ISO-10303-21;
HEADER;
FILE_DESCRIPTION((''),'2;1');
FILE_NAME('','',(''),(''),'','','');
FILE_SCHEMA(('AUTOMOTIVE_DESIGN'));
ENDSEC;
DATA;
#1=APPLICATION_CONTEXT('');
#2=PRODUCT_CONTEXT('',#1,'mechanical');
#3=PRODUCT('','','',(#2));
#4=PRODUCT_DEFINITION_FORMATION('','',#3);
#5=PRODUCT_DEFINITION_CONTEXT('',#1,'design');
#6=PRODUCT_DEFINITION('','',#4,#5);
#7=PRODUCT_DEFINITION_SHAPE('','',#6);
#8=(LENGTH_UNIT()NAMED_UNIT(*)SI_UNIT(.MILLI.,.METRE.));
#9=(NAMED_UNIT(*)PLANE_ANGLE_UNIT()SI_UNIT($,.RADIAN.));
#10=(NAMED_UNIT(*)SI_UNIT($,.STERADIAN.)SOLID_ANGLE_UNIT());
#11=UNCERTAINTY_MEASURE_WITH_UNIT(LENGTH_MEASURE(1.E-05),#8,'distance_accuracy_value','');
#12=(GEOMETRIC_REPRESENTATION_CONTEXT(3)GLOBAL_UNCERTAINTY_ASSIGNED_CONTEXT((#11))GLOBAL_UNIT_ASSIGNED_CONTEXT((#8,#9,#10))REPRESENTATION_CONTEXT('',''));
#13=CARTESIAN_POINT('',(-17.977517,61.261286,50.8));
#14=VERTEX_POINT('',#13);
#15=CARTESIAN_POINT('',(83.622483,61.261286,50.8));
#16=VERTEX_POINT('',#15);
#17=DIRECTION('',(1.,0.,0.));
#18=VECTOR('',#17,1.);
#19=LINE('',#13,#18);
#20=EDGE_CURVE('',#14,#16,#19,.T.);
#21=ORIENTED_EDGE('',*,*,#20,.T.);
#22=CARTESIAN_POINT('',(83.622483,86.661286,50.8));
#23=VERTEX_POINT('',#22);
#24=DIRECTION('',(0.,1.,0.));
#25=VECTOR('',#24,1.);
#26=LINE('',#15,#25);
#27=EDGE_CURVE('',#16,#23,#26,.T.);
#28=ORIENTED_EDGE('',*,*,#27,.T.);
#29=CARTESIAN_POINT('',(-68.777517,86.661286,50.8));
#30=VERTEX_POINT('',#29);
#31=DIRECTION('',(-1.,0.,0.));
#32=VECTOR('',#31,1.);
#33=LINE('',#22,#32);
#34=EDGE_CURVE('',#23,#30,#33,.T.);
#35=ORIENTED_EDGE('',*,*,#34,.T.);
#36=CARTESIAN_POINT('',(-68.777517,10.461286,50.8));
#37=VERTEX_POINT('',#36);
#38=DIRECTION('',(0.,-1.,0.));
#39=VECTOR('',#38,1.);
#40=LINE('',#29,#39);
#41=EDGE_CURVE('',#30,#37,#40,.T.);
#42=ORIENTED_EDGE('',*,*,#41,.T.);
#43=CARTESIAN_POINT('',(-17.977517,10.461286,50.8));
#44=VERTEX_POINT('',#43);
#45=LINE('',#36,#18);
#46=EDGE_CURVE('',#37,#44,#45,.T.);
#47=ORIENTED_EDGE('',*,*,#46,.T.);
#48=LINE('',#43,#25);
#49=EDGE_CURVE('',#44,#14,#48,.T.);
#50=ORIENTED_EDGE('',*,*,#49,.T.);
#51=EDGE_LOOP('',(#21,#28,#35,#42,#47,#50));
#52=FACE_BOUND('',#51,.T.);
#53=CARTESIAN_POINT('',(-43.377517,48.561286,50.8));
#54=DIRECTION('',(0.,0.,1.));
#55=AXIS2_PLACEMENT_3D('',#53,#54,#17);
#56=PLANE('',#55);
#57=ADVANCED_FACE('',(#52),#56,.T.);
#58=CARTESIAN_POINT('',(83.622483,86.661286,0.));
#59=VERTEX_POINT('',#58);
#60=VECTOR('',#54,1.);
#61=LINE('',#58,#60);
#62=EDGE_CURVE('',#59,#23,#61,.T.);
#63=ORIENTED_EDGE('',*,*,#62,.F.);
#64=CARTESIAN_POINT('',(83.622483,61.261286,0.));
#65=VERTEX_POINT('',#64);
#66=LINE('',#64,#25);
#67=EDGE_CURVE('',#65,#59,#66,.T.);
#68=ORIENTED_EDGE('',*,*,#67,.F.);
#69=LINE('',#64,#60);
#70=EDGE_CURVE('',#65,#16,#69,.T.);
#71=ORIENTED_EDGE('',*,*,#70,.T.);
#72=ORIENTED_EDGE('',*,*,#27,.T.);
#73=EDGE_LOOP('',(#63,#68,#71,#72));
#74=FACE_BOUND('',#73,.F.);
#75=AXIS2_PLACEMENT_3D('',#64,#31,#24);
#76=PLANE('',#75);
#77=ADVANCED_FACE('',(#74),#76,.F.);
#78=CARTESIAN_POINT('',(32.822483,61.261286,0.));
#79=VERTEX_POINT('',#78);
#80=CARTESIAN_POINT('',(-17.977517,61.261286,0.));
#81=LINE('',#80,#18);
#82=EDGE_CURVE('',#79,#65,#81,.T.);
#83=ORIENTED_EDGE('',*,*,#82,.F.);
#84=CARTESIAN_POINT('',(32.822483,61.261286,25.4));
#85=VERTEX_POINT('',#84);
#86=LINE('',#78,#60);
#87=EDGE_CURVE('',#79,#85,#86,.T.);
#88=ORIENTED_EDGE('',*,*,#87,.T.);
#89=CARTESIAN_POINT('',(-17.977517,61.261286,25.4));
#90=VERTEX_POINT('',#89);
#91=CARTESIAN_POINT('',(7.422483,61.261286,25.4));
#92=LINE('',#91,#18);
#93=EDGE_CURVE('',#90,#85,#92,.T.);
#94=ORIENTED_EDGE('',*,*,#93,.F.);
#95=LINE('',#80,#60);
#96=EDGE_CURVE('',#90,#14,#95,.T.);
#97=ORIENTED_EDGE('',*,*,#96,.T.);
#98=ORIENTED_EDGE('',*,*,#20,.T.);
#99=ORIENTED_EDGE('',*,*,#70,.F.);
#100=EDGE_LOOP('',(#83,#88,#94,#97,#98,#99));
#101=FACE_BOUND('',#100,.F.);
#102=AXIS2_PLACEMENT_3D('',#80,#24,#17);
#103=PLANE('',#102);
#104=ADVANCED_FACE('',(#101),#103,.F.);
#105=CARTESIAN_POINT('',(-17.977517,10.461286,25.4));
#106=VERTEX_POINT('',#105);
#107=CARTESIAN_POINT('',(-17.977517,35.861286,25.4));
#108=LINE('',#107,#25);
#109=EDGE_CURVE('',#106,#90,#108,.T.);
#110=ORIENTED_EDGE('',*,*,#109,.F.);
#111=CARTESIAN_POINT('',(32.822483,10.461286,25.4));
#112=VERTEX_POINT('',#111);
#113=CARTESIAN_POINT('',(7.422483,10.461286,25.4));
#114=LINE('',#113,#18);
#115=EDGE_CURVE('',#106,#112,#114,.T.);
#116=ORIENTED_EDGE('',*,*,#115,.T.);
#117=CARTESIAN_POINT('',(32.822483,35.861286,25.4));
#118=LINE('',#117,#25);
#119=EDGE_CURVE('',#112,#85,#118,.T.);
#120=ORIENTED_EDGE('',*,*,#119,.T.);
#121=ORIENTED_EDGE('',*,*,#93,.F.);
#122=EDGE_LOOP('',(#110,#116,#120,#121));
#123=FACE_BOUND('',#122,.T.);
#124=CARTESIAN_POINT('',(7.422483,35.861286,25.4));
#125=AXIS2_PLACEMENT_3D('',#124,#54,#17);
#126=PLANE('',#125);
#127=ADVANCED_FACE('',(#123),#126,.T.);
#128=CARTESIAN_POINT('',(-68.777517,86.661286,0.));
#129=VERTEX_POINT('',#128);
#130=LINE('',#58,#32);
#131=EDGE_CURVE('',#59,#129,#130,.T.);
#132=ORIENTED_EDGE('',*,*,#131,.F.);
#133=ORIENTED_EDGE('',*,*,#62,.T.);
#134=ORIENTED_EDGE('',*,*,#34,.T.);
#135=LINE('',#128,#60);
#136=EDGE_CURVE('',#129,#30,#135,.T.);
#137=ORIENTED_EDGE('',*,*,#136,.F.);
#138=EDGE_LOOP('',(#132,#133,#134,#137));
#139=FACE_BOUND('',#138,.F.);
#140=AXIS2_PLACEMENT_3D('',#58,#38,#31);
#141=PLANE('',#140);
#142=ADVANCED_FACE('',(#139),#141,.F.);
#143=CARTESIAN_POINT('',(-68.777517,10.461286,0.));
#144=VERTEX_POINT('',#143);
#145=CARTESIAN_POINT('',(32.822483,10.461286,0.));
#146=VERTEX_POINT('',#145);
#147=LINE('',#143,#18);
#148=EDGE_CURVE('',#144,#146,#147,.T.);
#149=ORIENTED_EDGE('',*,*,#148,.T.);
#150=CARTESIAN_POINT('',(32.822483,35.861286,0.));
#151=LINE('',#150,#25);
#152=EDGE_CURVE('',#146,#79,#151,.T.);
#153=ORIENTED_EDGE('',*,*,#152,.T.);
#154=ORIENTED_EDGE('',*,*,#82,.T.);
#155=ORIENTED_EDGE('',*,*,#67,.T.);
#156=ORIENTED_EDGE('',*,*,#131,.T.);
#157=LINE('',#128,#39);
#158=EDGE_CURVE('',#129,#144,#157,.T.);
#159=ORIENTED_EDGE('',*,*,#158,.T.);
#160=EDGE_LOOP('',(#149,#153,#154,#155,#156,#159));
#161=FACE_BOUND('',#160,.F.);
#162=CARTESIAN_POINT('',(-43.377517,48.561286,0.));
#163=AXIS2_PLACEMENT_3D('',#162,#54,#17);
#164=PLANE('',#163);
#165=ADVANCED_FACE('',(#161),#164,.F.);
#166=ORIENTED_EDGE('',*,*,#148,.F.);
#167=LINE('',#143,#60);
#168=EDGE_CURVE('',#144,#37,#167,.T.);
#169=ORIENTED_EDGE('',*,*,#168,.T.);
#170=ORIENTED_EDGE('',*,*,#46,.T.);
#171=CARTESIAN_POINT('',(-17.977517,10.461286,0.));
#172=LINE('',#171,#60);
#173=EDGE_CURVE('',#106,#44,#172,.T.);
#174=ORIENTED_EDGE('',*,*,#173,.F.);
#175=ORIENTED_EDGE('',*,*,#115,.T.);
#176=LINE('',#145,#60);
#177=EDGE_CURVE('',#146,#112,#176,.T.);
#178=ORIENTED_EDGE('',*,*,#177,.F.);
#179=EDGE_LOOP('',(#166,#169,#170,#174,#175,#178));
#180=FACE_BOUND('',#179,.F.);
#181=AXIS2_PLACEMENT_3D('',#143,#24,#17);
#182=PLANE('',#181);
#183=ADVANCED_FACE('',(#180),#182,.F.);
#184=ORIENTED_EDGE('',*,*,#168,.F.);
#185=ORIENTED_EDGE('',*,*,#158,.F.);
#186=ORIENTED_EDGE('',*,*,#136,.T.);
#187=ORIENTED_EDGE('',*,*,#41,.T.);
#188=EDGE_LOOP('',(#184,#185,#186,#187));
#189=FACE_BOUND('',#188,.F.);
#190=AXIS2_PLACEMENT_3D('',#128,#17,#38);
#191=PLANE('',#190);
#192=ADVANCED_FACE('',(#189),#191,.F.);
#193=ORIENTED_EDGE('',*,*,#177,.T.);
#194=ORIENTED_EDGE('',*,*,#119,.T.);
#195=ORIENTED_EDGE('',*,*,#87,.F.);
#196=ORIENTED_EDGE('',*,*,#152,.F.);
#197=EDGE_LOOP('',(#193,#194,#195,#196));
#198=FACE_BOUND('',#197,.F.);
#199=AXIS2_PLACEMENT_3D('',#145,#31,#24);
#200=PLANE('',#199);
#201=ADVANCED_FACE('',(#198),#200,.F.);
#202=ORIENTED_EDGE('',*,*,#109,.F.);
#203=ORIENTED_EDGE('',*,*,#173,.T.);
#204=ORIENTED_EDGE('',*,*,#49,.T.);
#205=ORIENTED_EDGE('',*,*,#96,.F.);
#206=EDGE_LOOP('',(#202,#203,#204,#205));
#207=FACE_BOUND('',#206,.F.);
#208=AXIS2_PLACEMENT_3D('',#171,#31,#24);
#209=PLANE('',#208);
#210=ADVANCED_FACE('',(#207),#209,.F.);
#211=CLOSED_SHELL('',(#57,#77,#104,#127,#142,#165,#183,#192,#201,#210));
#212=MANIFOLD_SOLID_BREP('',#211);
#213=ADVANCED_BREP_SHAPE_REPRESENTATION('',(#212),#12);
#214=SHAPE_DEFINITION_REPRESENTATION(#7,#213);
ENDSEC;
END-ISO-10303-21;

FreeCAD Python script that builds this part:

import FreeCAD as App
import Part
import Sketcher

V = App.Vector
Q = App.Units.Quantity

doc = App.newDocument("Part")
body = doc.addObject("PartDesign::Body", "Body")

sketch1 = body.newObject("Sketcher::SketchObject", "Sketch")
sketch1.AttachmentSupport = (doc.getObject("XY_Plane"), [""])
sketch1.MapMode = "FlatFace"
sketch1.addGeometry(Part.LineSegment(V(-18, 61, 0), V(-18, 10, 0)), False)
sketch1.addGeometry(Part.LineSegment(V(-18, 10, 0), V(33, 10, 0)), False)
sketch1.addGeometry(Part.LineSegment(V(33, 10, 0), V(33, 61, 0)), False)
sketch1.addGeometry(Part.LineSegment(V(33, 61, 0), V(-18, 61, 0)), False)
sketch1.addConstraint(Sketcher.Constraint("Coincident", 0, 2, 1, 1))
sketch1.addConstraint(Sketcher.Constraint("Coincident", 1, 2, 2, 1))
sketch1.addConstraint(Sketcher.Constraint("Coincident", 2, 2, 3, 1))
sketch1.addConstraint(Sketcher.Constraint("Coincident", 3, 2, 0, 1))
sketch1.addConstraint(Sketcher.Constraint("Vertical", 0))
sketch1.addConstraint(Sketcher.Constraint("Horizontal", 1))
sketch1.addConstraint(Sketcher.Constraint("Vertical", 2))
sketch1.addConstraint(Sketcher.Constraint("Horizontal", 3))
sketch1.addConstraint(Sketcher.Constraint("Equal", 3, 0))
sketch1.addConstraint(Sketcher.Constraint("DistanceX", 1, 1, 1, 2, Q("2 in")))
sketch1.addConstraint(Sketcher.Constraint("DistanceX", 0, 2, -1, 1, 17.977517))
sketch1.addConstraint(Sketcher.Constraint("DistanceY", -1, 1, 0, 2, 10.461286))
pad1 = body.newObject("PartDesign::Pad", "Pad")
pad1.Profile = sketch1
pad1.Length = Q("1 in")

sketch2 = body.newObject("Sketcher::SketchObject", "Sketch001")
sketch2.AttachmentSupport = (doc.getObject("XY_Plane"), [""])
sketch2.MapMode = "FlatFace"
sketch2.addGeometry(Part.LineSegment(V(-69, 87, 0), V(-69, 10, 0)), False)
sketch2.addGeometry(Part.LineSegment(V(-69, 10, 0), V(-18, 10, 0)), False)
sketch2.addGeometry(Part.LineSegment(V(-18, 10, 0), V(-18, 61, 0)), False)
sketch2.addGeometry(Part.LineSegment(V(-18, 61, 0), V(84, 61, 0)), False)
sketch2.addGeometry(Part.LineSegment(V(84, 61, 0), V(84, 87, 0)), False)
sketch2.addGeometry(Part.LineSegment(V(84, 87, 0), V(-69, 87, 0)), False)
sketch2.addConstraint(Sketcher.Constraint("Coincident", 0, 2, 1, 1))
sketch2.addConstraint(Sketcher.Constraint("Coincident", 1, 2, 2, 1))
sketch2.addConstraint(Sketcher.Constraint("Coincident", 2, 2, 3, 1))
sketch2.addConstraint(Sketcher.Constraint("Coincident", 3, 2, 4, 1))
sketch2.addConstraint(Sketcher.Constraint("Coincident", 4, 2, 5, 1))
sketch2.addConstraint(Sketcher.Constraint("Coincident", 5, 2, 0, 1))
sketch2.addConstraint(Sketcher.Constraint("Vertical", 0))
sketch2.addConstraint(Sketcher.Constraint("Horizontal", 1))
sketch2.addConstraint(Sketcher.Constraint("Vertical", 2))
sketch2.addConstraint(Sketcher.Constraint("Horizontal", 3))
sketch2.addConstraint(Sketcher.Constraint("Vertical", 4))
sketch2.addConstraint(Sketcher.Constraint("Horizontal", 5))
sketch2.addConstraint(Sketcher.Constraint("Equal", 1, 2))
sketch2.addConstraint(Sketcher.Constraint("DistanceX", 1, 1, 1, 2, Q("2 in")))
sketch2.addConstraint(Sketcher.Constraint("DistanceX", 3, 1, 3, 2, Q("4 in")))
sketch2.addConstraint(Sketcher.Constraint("DistanceY", 0, 2, 0, 1, Q("3 in")))
sketch2.addConstraint(Sketcher.Constraint("DistanceX", 0, 2, -1, 1, 68.777517))
sketch2.addConstraint(Sketcher.Constraint("DistanceY", -1, 1, 0, 2, 10.461286))
pad2 = body.newObject("PartDesign::Pad", "Pad001")
pad2.Profile = sketch2
pad2.Length = Q("2 in")

doc.recompute()
